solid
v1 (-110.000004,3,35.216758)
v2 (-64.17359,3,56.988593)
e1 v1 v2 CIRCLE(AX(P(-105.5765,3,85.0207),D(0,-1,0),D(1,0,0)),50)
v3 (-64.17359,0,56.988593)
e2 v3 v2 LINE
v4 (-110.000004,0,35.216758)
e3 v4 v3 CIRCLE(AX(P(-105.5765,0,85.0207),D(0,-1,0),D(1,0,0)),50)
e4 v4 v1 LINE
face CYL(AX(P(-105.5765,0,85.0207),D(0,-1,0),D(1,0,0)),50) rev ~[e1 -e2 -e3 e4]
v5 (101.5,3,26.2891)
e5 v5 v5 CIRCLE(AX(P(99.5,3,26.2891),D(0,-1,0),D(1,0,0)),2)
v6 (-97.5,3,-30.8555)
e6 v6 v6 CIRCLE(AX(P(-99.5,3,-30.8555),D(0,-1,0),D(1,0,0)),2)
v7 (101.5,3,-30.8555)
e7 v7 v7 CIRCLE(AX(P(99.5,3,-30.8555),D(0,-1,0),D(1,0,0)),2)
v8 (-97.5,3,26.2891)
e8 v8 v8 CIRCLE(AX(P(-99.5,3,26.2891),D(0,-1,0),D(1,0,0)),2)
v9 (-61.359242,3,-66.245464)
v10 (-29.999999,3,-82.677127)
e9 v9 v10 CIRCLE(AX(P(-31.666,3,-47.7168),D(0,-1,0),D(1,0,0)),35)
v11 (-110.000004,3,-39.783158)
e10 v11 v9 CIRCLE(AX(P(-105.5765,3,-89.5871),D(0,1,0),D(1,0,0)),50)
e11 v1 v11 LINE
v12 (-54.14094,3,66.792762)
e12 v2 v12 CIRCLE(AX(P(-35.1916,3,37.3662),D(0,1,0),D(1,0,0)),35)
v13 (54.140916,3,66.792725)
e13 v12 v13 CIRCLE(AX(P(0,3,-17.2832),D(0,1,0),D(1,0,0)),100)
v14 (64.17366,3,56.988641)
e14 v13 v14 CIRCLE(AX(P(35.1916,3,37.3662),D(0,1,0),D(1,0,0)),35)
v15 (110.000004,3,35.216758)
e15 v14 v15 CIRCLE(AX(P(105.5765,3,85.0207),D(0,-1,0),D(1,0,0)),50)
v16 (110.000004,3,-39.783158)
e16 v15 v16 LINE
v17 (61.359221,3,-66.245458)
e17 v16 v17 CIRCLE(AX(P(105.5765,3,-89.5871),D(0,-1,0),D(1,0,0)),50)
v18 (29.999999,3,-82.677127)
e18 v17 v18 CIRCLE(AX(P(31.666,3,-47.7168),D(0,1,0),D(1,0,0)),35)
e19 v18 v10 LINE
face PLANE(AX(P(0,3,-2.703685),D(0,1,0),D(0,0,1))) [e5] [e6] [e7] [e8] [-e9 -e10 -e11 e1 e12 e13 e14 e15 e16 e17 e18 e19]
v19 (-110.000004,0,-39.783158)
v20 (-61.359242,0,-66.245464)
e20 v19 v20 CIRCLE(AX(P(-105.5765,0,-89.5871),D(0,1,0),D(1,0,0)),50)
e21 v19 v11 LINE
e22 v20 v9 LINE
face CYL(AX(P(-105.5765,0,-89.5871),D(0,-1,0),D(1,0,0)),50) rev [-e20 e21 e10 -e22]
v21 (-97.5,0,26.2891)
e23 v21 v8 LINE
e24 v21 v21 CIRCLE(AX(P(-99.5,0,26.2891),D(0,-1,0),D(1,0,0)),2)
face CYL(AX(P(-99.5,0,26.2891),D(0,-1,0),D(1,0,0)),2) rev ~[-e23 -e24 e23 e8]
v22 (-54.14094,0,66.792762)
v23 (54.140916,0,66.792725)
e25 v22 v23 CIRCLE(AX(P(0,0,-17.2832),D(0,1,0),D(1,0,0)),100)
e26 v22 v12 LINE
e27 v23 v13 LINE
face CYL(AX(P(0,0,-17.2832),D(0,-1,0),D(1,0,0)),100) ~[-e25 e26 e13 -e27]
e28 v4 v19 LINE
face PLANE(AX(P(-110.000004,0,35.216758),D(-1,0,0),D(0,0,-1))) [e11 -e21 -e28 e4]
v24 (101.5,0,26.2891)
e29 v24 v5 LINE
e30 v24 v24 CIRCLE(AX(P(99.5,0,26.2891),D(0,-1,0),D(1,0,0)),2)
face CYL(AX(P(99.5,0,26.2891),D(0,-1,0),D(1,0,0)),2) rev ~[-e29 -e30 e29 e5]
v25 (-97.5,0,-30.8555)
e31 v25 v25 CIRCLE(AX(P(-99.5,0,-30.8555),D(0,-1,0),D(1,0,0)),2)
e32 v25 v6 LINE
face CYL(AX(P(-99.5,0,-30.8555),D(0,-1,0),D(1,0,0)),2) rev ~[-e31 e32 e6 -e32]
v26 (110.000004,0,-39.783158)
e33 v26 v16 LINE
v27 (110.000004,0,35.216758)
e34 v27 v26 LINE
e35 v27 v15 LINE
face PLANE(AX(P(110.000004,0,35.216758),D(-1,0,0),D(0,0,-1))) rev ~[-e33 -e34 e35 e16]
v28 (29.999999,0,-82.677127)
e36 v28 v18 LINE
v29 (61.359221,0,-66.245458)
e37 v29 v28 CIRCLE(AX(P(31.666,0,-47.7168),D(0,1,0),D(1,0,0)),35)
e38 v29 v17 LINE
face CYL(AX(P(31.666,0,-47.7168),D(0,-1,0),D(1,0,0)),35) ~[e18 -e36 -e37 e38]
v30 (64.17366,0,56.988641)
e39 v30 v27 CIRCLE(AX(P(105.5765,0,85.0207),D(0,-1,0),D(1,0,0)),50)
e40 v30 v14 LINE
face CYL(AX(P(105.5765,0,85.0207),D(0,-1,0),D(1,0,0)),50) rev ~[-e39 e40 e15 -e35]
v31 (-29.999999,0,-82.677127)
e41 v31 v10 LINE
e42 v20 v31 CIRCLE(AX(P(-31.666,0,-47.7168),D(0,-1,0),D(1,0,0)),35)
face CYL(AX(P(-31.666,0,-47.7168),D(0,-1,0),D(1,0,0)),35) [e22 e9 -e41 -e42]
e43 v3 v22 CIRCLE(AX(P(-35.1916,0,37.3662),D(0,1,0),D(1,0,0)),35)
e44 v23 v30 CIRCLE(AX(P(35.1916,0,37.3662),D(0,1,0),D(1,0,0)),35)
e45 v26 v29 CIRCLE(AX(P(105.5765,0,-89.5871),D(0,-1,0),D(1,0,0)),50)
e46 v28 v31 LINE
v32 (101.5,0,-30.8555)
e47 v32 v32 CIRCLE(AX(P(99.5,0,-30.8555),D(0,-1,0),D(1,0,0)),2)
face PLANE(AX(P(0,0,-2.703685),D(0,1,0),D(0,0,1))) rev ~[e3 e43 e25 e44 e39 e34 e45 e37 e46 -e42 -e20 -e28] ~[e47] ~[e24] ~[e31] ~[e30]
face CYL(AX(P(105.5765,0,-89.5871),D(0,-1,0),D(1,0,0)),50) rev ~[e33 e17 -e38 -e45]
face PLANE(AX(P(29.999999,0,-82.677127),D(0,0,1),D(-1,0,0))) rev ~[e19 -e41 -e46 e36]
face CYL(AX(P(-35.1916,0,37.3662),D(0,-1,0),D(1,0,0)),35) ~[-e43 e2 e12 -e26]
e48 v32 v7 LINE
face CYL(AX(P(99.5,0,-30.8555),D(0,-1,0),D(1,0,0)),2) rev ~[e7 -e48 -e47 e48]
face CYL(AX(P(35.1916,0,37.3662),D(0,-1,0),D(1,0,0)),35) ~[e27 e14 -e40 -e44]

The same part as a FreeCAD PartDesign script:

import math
import FreeCAD as App
import Part
import Sketcher
Q = App.Units.Quantity

doc = App.newDocument("Part")
body = doc.addObject("PartDesign::Body", "Body")

# Sketch on XZ plane
sketch1 = body.newObject("Sketcher::SketchObject", "Sketch")
sketch1.AttachmentSupport = (doc.getObject("XZ_Plane"), [""])
sketch1.MapMode = "FlatFace"
sketch1.addGeometry([
    Part.ArcOfCircle(Part.Circle(App.Vector(-105.6, 85, 0), App.Vector(0, 0, 1), 50), math.radians(-95), math.radians(-34)),  # 0
    Part.LineSegment(App.Vector(-110, 35.2, 0), App.Vector(-110, -39.8, 0)),  # 1
    Part.ArcOfCircle(Part.Circle(App.Vector(-105.6, -89.6, 0), App.Vector(0, 0, 1), 50), math.radians(28), math.radians(95)),  # 2
    Part.ArcOfCircle(Part.Circle(App.Vector(-31.7, -47.7, 0), App.Vector(0, 0, 1), 35), math.radians(-148), math.radians(-87)),  # 3
    Part.LineSegment(App.Vector(-30, -82.7, 0), App.Vector(30, -82.7, 0)),  # 4
    Part.ArcOfCircle(Part.Circle(App.Vector(31.7, -47.7, 0), App.Vector(0, 0, 1), 35), math.radians(-93), math.radians(-32)),  # 5
    Part.ArcOfCircle(Part.Circle(App.Vector(105.6, -89.6, 0), App.Vector(0, 0, 1), 50), math.radians(85), math.radians(152)),  # 6
    Part.LineSegment(App.Vector(110, -39.8, 0), App.Vector(110, 35.2, 0)),  # 7
    Part.ArcOfCircle(Part.Circle(App.Vector(105.6, 85, 0), App.Vector(0, 0, 1), 50), math.radians(-146), math.radians(-85)),  # 8
    Part.ArcOfCircle(Part.Circle(App.Vector(35.2, 37.4, 0), App.Vector(0, 0, 1), 35), math.radians(34), math.radians(57)),  # 9
    Part.ArcOfCircle(Part.Circle(App.Vector(0, -17.3, 0), App.Vector(0, 0, 1), 100), math.radians(57), math.radians(123)),  # 10
    Part.ArcOfCircle(Part.Circle(App.Vector(-35.2, 37.4, 0), App.Vector(0, 0, 1), 35), math.radians(123), math.radians(146)),  # 11
    Part.Circle(App.Vector(-99.5, -30.9, 0), App.Vector(0, 0, 1), 2),  # 12
    Part.Circle(App.Vector(99.5, -30.9, 0), App.Vector(0, 0, 1), 2),  # 13
    Part.Circle(App.Vector(-99.5, 26.3, 0), App.Vector(0, 0, 1), 2),  # 14
    Part.Circle(App.Vector(99.5, 26.3, 0), App.Vector(0, 0, 1), 2),  # 15
], False)
sketch1.addConstraint([
    Sketcher.Constraint("Coincident", 0, 1, 1, 1),
    Sketcher.Constraint("Coincident", 1, 2, 2, 2),
    Sketcher.Constraint("Coincident", 2, 1, 3, 1),
    Sketcher.Constraint("Coincident", 3, 2, 4, 1),
    Sketcher.Constraint("Coincident", 4, 2, 5, 1),
    Sketcher.Constraint("Coincident", 5, 2, 6, 2),
    Sketcher.Constraint("Coincident", 6, 1, 7, 1),
    Sketcher.Constraint("Coincident", 7, 2, 8, 2),
    Sketcher.Constraint("Tangent", 8, 1, 9, 1),
    Sketcher.Constraint("Tangent", 9, 2, 10, 1),
    Sketcher.Constraint("Tangent", 10, 2, 11, 1),
    Sketcher.Constraint("Tangent", 11, 2, 0, 2),
    Sketcher.Constraint("Vertical", 1),
    Sketcher.Constraint("Horizontal", 4),
    Sketcher.Constraint("Vertical", 7),
    Sketcher.Constraint("Equal", 0, 2),
    Sketcher.Constraint("Equal", 3, 5),
    Sketcher.Constraint("Equal", 2, 6),
    Sketcher.Constraint("Equal", 6, 8),
    Sketcher.Constraint("Equal", 5, 9),
    Sketcher.Constraint("Equal", 9, 11),
    Sketcher.Constraint("Equal", 12, 13),
    Sketcher.Constraint("Equal", 13, 14),
    Sketcher.Constraint("Equal", 14, 15),
    Sketcher.Constraint("Symmetric", 3, 3, 5, 3, -2),
    Sketcher.Constraint("Symmetric", 2, 3, 6, 3, -2),
    Sketcher.Constraint("Symmetric", 0, 3, 8, 3, -2),
    Sketcher.Constraint("Symmetric", 12, 3, 13, 3, -2),
    Sketcher.Constraint("Symmetric", 14, 3, 15, 3, -2),
    Sketcher.Constraint("PointOnObject", 10, 3, -2),
    Sketcher.Constraint("Horizontal", 1, 2, 6, 1),
    Sketcher.Constraint("Vertical", 0, 3, 2, 3),
    Sketcher.Constraint("Vertical", 12, 3, 14, 3),
    Sketcher.Constraint("Diameter", 12, Q("4 mm")),
    Sketcher.Constraint("Radius", 0, Q("50 mm")),
    Sketcher.Constraint("Radius", 3, Q("35 mm")),
    Sketcher.Constraint("Radius", 10, Q("100 mm")),
    Sketcher.Constraint("DistanceX", 4, 1, 4, 2, Q("60 mm")),
    Sketcher.Constraint("DistanceY", 1, 2, 1, 1, Q("75 mm")),
    Sketcher.Constraint("DistanceX", 0, 1, -1, 1, Q("110 mm")),
    Sketcher.Constraint("DistanceX", 12, 3, -1, 1, Q("99.5 mm")),
    Sketcher.Constraint("DistanceY", 2, 1, 12, 3, Q("35.39 mm")),
    Sketcher.Constraint("DistanceY", 2, 3, 3, 2, Q("6.91 mm")),
    Sketcher.Constraint("DistanceY", 2, 3, -1, 1, Q("89.587 mm")),
    Sketcher.Constraint("DistanceX", 3, 3, -1, 1, Q("31.666 mm")),
    Sketcher.Constraint("DistanceY", -1, 1, 14, 3, Q("26.289 mm")),
    Sketcher.Constraint("DistanceX", -1, 1, 9, 2, Q("54.141 mm")),
    Sketcher.Constraint("DistanceX", 2, 3, 6, 3, Q("211.153 mm")),
])
pad1 = body.newObject("PartDesign::Pad", "Pad")
pad1.Profile = sketch1
pad1.Length = 3
pad1.Reversed = True

doc.recompute()
